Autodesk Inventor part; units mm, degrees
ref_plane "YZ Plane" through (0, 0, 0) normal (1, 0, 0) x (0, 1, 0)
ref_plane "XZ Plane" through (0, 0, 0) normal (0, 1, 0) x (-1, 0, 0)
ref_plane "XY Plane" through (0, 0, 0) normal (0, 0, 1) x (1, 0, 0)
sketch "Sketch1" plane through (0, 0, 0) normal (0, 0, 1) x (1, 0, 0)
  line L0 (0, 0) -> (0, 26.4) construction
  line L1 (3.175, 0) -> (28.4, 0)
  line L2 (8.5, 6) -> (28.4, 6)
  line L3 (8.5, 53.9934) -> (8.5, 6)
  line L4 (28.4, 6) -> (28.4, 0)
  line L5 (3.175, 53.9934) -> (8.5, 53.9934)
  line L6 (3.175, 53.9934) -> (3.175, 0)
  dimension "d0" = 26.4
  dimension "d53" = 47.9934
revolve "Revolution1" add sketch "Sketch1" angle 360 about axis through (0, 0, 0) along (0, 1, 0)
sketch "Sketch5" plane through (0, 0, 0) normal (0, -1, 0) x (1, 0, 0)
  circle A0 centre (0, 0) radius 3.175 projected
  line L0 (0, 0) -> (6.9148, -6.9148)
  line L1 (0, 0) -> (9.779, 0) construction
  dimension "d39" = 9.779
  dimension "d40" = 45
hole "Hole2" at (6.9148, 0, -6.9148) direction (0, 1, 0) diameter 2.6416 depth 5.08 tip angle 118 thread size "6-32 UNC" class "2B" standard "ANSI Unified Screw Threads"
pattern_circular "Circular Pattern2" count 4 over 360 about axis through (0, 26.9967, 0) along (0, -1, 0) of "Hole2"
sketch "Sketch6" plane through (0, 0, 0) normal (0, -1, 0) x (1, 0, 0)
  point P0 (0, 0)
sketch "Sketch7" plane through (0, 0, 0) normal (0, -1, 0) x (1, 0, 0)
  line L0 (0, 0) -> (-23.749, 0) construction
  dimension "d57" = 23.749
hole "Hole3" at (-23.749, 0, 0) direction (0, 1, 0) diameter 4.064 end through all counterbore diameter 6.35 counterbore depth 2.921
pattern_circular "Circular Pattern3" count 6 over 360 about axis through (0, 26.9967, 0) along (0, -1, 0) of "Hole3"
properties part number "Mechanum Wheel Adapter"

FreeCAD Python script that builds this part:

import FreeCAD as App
import Part
import Sketcher

V = App.Vector
Q = App.Units.Quantity

doc = App.newDocument("Part")
body = doc.addObject("PartDesign::Body", "Body")

sketch1 = doc.addObject("Sketcher::SketchObject", "Sketch")
body.addObject(sketch1)
sketch1.AttachmentSupport = (doc.XY_Plane, [""])
sketch1.MapMode = "FlatFace"
sketch1.addGeometry([
    Part.LineSegment(V(3, 54, 0), V(3, 0, 0)),
    Part.LineSegment(V(3, 0, 0), V(28, 0, 0)),
    Part.LineSegment(V(28, 0, 0), V(28, 6, 0)),
    Part.LineSegment(V(28, 6, 0), V(8, 6, 0)),
    Part.LineSegment(V(8, 6, 0), V(8, 54, 0)),
    Part.LineSegment(V(8, 54, 0), V(3, 54, 0)),
], False)
sketch1.addConstraint([
    Sketcher.Constraint("Coincident", 0, 2, 1, 1),
    Sketcher.Constraint("Coincident", 1, 2, 2, 1),
    Sketcher.Constraint("Coincident", 2, 2, 3, 1),
    Sketcher.Constraint("Coincident", 3, 2, 4, 1),
    Sketcher.Constraint("Coincident", 4, 2, 5, 1),
    Sketcher.Constraint("Coincident", 5, 2, 0, 1),
    Sketcher.Constraint("Vertical", 0),
    Sketcher.Constraint("Horizontal", 1),
    Sketcher.Constraint("Vertical", 2),
    Sketcher.Constraint("Horizontal", 3),
    Sketcher.Constraint("Vertical", 4),
    Sketcher.Constraint("Horizontal", 5),
    Sketcher.Constraint("PointOnObject", 0, 2, -1),
    Sketcher.Constraint("DistanceY", 4, 1, 4, 2, Q("1.8895 in")),
    Sketcher.Constraint("DistanceX", 1, 1, 1, 2, Q("0.9931 in")),
    Sketcher.Constraint("DistanceX", -1, 1, 0, 2, Q("0.125 in")),
    Sketcher.Constraint("DistanceX", 3, 2, 3, 1, Q("19.9 mm")),
    Sketcher.Constraint("DistanceY", 0, 2, 0, 1, Q("53.9934 mm")),
])
revolution = doc.addObject("PartDesign::Revolution", "Revolution")
body.addObject(revolution)
revolution.Profile = sketch1
revolution.ReferenceAxis = (sketch1, ["V_Axis"])
revolution.Angle = 360

sketch2 = doc.addObject("Sketcher::SketchObject", "Sketch001")
body.addObject(sketch2)
sketch2.AttachmentSupport = (doc.XZ_Plane, [""])
sketch2.MapMode = "FlatFace"
sketch2.addGeometry(Part.Circle(V(6.9, -6.9, 0), V(0, 0, 1), 1.3), False)
sketch2.addConstraint([
    Sketcher.Constraint("Diameter", 0, Q("0.104 in")),
    Sketcher.Constraint("DistanceX", -1, 1, 0, 3, Q("6.9148 mm")),
    Sketcher.Constraint("DistanceY", 0, 3, -1, 1, Q("6.9148 mm")),
])
doc.recompute()
hole = doc.addObject("PartDesign::Hole", "Hole")
body.addObject(hole)
hole.Profile = sketch2
hole.ThreadType = "None"
hole.Diameter = Q("0.104 in")
hole.DepthType = "Dimension"
hole.Depth = Q("0.2 in")
hole.DrillPoint = "Angled"
hole.DrillPointAngle = 118
doc.recompute()

polarpattern = doc.addObject("PartDesign::PolarPattern", "PolarPattern")
body.addObject(polarpattern)
polarpattern.Originals = [hole]
polarpattern.Axis = (doc.Y_Axis, [""])
polarpattern.Angle = 360
polarpattern.Occurrences = 4
body.Tip = polarpattern

sketch3 = doc.addObject("Sketcher::SketchObject", "Sketch002")
body.addObject(sketch3)
sketch3.AttachmentSupport = (doc.XZ_Plane, [""])
sketch3.MapMode = "FlatFace"
sketch3.addGeometry(Part.Circle(V(-23.7, 0, 0), V(0, 0, 1), 2), False)
sketch3.addConstraint([
    Sketcher.Constraint("PointOnObject", 0, 3, -1),
    Sketcher.Constraint("Diameter", 0, Q("0.16 in")),
    Sketcher.Constraint("DistanceX", 0, 3, -1, 1, Q("0.935 in")),
])
doc.recompute()
hole2 = doc.addObject("PartDesign::Hole", "Hole001")
body.addObject(hole2)
hole2.Profile = sketch3
hole2.ThreadType = "None"
hole2.Diameter = Q("0.16 in")
hole2.DepthType = "ThroughAll"
hole2.HoleCutType = "Counterbore"
hole2.HoleCutDiameter = Q("0.25 in")
hole2.HoleCutDepth = Q("0.115 in")
doc.recompute()

polarpattern2 = doc.addObject("PartDesign::PolarPattern", "PolarPattern001")
body.addObject(polarpattern2)
polarpattern2.Originals = [hole2]
polarpattern2.Axis = (doc.Y_Axis, [""])
polarpattern2.Angle = 360
polarpattern2.Occurrences = 6
body.Tip = polarpattern2

doc.recompute()
